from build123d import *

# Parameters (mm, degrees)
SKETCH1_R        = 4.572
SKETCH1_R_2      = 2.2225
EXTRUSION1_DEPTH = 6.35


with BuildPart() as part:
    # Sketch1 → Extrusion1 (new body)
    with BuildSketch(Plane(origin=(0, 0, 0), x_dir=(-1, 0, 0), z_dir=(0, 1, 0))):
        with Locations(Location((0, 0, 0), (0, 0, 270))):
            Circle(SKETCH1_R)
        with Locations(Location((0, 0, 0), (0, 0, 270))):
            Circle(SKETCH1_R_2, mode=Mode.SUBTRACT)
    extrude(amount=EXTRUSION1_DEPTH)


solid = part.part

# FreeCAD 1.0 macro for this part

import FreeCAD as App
import Part
import Sketcher
Q = App.Units.Quantity

doc = App.newDocument("Part")
body = doc.addObject("PartDesign::Body", "Body")

sketch1 = body.newObject("Sketcher::SketchObject", "Sketch")
sketch1.AttachmentSupport = (doc.getObject("XZ_Plane"), [""])
sketch1.MapMode = "FlatFace"
sketch1.addGeometry([
    Part.Circle(App.Vector(0, 0, 0), App.Vector(0, 0, 1), 4.572),
    Part.Circle(App.Vector(0, 0, 0), App.Vector(0, 0, 1), 2.2225),
], False)
sketch1.addConstraint([
    Sketcher.Constraint("Coincident", 0, 3, -1, 1),
    Sketcher.Constraint("Coincident", 1, 3, -1, 1),
    Sketcher.Constraint("Diameter", 0, Q("0.36 in")),
    Sketcher.Constraint("Diameter", 1, Q("0.175 in")),
])
pad1 = body.newObject("PartDesign::Pad", "Pad")
pad1.Profile = sketch1
pad1.Length = Q("0.25 in")
pad1.Reversed = True

doc.recompute()
